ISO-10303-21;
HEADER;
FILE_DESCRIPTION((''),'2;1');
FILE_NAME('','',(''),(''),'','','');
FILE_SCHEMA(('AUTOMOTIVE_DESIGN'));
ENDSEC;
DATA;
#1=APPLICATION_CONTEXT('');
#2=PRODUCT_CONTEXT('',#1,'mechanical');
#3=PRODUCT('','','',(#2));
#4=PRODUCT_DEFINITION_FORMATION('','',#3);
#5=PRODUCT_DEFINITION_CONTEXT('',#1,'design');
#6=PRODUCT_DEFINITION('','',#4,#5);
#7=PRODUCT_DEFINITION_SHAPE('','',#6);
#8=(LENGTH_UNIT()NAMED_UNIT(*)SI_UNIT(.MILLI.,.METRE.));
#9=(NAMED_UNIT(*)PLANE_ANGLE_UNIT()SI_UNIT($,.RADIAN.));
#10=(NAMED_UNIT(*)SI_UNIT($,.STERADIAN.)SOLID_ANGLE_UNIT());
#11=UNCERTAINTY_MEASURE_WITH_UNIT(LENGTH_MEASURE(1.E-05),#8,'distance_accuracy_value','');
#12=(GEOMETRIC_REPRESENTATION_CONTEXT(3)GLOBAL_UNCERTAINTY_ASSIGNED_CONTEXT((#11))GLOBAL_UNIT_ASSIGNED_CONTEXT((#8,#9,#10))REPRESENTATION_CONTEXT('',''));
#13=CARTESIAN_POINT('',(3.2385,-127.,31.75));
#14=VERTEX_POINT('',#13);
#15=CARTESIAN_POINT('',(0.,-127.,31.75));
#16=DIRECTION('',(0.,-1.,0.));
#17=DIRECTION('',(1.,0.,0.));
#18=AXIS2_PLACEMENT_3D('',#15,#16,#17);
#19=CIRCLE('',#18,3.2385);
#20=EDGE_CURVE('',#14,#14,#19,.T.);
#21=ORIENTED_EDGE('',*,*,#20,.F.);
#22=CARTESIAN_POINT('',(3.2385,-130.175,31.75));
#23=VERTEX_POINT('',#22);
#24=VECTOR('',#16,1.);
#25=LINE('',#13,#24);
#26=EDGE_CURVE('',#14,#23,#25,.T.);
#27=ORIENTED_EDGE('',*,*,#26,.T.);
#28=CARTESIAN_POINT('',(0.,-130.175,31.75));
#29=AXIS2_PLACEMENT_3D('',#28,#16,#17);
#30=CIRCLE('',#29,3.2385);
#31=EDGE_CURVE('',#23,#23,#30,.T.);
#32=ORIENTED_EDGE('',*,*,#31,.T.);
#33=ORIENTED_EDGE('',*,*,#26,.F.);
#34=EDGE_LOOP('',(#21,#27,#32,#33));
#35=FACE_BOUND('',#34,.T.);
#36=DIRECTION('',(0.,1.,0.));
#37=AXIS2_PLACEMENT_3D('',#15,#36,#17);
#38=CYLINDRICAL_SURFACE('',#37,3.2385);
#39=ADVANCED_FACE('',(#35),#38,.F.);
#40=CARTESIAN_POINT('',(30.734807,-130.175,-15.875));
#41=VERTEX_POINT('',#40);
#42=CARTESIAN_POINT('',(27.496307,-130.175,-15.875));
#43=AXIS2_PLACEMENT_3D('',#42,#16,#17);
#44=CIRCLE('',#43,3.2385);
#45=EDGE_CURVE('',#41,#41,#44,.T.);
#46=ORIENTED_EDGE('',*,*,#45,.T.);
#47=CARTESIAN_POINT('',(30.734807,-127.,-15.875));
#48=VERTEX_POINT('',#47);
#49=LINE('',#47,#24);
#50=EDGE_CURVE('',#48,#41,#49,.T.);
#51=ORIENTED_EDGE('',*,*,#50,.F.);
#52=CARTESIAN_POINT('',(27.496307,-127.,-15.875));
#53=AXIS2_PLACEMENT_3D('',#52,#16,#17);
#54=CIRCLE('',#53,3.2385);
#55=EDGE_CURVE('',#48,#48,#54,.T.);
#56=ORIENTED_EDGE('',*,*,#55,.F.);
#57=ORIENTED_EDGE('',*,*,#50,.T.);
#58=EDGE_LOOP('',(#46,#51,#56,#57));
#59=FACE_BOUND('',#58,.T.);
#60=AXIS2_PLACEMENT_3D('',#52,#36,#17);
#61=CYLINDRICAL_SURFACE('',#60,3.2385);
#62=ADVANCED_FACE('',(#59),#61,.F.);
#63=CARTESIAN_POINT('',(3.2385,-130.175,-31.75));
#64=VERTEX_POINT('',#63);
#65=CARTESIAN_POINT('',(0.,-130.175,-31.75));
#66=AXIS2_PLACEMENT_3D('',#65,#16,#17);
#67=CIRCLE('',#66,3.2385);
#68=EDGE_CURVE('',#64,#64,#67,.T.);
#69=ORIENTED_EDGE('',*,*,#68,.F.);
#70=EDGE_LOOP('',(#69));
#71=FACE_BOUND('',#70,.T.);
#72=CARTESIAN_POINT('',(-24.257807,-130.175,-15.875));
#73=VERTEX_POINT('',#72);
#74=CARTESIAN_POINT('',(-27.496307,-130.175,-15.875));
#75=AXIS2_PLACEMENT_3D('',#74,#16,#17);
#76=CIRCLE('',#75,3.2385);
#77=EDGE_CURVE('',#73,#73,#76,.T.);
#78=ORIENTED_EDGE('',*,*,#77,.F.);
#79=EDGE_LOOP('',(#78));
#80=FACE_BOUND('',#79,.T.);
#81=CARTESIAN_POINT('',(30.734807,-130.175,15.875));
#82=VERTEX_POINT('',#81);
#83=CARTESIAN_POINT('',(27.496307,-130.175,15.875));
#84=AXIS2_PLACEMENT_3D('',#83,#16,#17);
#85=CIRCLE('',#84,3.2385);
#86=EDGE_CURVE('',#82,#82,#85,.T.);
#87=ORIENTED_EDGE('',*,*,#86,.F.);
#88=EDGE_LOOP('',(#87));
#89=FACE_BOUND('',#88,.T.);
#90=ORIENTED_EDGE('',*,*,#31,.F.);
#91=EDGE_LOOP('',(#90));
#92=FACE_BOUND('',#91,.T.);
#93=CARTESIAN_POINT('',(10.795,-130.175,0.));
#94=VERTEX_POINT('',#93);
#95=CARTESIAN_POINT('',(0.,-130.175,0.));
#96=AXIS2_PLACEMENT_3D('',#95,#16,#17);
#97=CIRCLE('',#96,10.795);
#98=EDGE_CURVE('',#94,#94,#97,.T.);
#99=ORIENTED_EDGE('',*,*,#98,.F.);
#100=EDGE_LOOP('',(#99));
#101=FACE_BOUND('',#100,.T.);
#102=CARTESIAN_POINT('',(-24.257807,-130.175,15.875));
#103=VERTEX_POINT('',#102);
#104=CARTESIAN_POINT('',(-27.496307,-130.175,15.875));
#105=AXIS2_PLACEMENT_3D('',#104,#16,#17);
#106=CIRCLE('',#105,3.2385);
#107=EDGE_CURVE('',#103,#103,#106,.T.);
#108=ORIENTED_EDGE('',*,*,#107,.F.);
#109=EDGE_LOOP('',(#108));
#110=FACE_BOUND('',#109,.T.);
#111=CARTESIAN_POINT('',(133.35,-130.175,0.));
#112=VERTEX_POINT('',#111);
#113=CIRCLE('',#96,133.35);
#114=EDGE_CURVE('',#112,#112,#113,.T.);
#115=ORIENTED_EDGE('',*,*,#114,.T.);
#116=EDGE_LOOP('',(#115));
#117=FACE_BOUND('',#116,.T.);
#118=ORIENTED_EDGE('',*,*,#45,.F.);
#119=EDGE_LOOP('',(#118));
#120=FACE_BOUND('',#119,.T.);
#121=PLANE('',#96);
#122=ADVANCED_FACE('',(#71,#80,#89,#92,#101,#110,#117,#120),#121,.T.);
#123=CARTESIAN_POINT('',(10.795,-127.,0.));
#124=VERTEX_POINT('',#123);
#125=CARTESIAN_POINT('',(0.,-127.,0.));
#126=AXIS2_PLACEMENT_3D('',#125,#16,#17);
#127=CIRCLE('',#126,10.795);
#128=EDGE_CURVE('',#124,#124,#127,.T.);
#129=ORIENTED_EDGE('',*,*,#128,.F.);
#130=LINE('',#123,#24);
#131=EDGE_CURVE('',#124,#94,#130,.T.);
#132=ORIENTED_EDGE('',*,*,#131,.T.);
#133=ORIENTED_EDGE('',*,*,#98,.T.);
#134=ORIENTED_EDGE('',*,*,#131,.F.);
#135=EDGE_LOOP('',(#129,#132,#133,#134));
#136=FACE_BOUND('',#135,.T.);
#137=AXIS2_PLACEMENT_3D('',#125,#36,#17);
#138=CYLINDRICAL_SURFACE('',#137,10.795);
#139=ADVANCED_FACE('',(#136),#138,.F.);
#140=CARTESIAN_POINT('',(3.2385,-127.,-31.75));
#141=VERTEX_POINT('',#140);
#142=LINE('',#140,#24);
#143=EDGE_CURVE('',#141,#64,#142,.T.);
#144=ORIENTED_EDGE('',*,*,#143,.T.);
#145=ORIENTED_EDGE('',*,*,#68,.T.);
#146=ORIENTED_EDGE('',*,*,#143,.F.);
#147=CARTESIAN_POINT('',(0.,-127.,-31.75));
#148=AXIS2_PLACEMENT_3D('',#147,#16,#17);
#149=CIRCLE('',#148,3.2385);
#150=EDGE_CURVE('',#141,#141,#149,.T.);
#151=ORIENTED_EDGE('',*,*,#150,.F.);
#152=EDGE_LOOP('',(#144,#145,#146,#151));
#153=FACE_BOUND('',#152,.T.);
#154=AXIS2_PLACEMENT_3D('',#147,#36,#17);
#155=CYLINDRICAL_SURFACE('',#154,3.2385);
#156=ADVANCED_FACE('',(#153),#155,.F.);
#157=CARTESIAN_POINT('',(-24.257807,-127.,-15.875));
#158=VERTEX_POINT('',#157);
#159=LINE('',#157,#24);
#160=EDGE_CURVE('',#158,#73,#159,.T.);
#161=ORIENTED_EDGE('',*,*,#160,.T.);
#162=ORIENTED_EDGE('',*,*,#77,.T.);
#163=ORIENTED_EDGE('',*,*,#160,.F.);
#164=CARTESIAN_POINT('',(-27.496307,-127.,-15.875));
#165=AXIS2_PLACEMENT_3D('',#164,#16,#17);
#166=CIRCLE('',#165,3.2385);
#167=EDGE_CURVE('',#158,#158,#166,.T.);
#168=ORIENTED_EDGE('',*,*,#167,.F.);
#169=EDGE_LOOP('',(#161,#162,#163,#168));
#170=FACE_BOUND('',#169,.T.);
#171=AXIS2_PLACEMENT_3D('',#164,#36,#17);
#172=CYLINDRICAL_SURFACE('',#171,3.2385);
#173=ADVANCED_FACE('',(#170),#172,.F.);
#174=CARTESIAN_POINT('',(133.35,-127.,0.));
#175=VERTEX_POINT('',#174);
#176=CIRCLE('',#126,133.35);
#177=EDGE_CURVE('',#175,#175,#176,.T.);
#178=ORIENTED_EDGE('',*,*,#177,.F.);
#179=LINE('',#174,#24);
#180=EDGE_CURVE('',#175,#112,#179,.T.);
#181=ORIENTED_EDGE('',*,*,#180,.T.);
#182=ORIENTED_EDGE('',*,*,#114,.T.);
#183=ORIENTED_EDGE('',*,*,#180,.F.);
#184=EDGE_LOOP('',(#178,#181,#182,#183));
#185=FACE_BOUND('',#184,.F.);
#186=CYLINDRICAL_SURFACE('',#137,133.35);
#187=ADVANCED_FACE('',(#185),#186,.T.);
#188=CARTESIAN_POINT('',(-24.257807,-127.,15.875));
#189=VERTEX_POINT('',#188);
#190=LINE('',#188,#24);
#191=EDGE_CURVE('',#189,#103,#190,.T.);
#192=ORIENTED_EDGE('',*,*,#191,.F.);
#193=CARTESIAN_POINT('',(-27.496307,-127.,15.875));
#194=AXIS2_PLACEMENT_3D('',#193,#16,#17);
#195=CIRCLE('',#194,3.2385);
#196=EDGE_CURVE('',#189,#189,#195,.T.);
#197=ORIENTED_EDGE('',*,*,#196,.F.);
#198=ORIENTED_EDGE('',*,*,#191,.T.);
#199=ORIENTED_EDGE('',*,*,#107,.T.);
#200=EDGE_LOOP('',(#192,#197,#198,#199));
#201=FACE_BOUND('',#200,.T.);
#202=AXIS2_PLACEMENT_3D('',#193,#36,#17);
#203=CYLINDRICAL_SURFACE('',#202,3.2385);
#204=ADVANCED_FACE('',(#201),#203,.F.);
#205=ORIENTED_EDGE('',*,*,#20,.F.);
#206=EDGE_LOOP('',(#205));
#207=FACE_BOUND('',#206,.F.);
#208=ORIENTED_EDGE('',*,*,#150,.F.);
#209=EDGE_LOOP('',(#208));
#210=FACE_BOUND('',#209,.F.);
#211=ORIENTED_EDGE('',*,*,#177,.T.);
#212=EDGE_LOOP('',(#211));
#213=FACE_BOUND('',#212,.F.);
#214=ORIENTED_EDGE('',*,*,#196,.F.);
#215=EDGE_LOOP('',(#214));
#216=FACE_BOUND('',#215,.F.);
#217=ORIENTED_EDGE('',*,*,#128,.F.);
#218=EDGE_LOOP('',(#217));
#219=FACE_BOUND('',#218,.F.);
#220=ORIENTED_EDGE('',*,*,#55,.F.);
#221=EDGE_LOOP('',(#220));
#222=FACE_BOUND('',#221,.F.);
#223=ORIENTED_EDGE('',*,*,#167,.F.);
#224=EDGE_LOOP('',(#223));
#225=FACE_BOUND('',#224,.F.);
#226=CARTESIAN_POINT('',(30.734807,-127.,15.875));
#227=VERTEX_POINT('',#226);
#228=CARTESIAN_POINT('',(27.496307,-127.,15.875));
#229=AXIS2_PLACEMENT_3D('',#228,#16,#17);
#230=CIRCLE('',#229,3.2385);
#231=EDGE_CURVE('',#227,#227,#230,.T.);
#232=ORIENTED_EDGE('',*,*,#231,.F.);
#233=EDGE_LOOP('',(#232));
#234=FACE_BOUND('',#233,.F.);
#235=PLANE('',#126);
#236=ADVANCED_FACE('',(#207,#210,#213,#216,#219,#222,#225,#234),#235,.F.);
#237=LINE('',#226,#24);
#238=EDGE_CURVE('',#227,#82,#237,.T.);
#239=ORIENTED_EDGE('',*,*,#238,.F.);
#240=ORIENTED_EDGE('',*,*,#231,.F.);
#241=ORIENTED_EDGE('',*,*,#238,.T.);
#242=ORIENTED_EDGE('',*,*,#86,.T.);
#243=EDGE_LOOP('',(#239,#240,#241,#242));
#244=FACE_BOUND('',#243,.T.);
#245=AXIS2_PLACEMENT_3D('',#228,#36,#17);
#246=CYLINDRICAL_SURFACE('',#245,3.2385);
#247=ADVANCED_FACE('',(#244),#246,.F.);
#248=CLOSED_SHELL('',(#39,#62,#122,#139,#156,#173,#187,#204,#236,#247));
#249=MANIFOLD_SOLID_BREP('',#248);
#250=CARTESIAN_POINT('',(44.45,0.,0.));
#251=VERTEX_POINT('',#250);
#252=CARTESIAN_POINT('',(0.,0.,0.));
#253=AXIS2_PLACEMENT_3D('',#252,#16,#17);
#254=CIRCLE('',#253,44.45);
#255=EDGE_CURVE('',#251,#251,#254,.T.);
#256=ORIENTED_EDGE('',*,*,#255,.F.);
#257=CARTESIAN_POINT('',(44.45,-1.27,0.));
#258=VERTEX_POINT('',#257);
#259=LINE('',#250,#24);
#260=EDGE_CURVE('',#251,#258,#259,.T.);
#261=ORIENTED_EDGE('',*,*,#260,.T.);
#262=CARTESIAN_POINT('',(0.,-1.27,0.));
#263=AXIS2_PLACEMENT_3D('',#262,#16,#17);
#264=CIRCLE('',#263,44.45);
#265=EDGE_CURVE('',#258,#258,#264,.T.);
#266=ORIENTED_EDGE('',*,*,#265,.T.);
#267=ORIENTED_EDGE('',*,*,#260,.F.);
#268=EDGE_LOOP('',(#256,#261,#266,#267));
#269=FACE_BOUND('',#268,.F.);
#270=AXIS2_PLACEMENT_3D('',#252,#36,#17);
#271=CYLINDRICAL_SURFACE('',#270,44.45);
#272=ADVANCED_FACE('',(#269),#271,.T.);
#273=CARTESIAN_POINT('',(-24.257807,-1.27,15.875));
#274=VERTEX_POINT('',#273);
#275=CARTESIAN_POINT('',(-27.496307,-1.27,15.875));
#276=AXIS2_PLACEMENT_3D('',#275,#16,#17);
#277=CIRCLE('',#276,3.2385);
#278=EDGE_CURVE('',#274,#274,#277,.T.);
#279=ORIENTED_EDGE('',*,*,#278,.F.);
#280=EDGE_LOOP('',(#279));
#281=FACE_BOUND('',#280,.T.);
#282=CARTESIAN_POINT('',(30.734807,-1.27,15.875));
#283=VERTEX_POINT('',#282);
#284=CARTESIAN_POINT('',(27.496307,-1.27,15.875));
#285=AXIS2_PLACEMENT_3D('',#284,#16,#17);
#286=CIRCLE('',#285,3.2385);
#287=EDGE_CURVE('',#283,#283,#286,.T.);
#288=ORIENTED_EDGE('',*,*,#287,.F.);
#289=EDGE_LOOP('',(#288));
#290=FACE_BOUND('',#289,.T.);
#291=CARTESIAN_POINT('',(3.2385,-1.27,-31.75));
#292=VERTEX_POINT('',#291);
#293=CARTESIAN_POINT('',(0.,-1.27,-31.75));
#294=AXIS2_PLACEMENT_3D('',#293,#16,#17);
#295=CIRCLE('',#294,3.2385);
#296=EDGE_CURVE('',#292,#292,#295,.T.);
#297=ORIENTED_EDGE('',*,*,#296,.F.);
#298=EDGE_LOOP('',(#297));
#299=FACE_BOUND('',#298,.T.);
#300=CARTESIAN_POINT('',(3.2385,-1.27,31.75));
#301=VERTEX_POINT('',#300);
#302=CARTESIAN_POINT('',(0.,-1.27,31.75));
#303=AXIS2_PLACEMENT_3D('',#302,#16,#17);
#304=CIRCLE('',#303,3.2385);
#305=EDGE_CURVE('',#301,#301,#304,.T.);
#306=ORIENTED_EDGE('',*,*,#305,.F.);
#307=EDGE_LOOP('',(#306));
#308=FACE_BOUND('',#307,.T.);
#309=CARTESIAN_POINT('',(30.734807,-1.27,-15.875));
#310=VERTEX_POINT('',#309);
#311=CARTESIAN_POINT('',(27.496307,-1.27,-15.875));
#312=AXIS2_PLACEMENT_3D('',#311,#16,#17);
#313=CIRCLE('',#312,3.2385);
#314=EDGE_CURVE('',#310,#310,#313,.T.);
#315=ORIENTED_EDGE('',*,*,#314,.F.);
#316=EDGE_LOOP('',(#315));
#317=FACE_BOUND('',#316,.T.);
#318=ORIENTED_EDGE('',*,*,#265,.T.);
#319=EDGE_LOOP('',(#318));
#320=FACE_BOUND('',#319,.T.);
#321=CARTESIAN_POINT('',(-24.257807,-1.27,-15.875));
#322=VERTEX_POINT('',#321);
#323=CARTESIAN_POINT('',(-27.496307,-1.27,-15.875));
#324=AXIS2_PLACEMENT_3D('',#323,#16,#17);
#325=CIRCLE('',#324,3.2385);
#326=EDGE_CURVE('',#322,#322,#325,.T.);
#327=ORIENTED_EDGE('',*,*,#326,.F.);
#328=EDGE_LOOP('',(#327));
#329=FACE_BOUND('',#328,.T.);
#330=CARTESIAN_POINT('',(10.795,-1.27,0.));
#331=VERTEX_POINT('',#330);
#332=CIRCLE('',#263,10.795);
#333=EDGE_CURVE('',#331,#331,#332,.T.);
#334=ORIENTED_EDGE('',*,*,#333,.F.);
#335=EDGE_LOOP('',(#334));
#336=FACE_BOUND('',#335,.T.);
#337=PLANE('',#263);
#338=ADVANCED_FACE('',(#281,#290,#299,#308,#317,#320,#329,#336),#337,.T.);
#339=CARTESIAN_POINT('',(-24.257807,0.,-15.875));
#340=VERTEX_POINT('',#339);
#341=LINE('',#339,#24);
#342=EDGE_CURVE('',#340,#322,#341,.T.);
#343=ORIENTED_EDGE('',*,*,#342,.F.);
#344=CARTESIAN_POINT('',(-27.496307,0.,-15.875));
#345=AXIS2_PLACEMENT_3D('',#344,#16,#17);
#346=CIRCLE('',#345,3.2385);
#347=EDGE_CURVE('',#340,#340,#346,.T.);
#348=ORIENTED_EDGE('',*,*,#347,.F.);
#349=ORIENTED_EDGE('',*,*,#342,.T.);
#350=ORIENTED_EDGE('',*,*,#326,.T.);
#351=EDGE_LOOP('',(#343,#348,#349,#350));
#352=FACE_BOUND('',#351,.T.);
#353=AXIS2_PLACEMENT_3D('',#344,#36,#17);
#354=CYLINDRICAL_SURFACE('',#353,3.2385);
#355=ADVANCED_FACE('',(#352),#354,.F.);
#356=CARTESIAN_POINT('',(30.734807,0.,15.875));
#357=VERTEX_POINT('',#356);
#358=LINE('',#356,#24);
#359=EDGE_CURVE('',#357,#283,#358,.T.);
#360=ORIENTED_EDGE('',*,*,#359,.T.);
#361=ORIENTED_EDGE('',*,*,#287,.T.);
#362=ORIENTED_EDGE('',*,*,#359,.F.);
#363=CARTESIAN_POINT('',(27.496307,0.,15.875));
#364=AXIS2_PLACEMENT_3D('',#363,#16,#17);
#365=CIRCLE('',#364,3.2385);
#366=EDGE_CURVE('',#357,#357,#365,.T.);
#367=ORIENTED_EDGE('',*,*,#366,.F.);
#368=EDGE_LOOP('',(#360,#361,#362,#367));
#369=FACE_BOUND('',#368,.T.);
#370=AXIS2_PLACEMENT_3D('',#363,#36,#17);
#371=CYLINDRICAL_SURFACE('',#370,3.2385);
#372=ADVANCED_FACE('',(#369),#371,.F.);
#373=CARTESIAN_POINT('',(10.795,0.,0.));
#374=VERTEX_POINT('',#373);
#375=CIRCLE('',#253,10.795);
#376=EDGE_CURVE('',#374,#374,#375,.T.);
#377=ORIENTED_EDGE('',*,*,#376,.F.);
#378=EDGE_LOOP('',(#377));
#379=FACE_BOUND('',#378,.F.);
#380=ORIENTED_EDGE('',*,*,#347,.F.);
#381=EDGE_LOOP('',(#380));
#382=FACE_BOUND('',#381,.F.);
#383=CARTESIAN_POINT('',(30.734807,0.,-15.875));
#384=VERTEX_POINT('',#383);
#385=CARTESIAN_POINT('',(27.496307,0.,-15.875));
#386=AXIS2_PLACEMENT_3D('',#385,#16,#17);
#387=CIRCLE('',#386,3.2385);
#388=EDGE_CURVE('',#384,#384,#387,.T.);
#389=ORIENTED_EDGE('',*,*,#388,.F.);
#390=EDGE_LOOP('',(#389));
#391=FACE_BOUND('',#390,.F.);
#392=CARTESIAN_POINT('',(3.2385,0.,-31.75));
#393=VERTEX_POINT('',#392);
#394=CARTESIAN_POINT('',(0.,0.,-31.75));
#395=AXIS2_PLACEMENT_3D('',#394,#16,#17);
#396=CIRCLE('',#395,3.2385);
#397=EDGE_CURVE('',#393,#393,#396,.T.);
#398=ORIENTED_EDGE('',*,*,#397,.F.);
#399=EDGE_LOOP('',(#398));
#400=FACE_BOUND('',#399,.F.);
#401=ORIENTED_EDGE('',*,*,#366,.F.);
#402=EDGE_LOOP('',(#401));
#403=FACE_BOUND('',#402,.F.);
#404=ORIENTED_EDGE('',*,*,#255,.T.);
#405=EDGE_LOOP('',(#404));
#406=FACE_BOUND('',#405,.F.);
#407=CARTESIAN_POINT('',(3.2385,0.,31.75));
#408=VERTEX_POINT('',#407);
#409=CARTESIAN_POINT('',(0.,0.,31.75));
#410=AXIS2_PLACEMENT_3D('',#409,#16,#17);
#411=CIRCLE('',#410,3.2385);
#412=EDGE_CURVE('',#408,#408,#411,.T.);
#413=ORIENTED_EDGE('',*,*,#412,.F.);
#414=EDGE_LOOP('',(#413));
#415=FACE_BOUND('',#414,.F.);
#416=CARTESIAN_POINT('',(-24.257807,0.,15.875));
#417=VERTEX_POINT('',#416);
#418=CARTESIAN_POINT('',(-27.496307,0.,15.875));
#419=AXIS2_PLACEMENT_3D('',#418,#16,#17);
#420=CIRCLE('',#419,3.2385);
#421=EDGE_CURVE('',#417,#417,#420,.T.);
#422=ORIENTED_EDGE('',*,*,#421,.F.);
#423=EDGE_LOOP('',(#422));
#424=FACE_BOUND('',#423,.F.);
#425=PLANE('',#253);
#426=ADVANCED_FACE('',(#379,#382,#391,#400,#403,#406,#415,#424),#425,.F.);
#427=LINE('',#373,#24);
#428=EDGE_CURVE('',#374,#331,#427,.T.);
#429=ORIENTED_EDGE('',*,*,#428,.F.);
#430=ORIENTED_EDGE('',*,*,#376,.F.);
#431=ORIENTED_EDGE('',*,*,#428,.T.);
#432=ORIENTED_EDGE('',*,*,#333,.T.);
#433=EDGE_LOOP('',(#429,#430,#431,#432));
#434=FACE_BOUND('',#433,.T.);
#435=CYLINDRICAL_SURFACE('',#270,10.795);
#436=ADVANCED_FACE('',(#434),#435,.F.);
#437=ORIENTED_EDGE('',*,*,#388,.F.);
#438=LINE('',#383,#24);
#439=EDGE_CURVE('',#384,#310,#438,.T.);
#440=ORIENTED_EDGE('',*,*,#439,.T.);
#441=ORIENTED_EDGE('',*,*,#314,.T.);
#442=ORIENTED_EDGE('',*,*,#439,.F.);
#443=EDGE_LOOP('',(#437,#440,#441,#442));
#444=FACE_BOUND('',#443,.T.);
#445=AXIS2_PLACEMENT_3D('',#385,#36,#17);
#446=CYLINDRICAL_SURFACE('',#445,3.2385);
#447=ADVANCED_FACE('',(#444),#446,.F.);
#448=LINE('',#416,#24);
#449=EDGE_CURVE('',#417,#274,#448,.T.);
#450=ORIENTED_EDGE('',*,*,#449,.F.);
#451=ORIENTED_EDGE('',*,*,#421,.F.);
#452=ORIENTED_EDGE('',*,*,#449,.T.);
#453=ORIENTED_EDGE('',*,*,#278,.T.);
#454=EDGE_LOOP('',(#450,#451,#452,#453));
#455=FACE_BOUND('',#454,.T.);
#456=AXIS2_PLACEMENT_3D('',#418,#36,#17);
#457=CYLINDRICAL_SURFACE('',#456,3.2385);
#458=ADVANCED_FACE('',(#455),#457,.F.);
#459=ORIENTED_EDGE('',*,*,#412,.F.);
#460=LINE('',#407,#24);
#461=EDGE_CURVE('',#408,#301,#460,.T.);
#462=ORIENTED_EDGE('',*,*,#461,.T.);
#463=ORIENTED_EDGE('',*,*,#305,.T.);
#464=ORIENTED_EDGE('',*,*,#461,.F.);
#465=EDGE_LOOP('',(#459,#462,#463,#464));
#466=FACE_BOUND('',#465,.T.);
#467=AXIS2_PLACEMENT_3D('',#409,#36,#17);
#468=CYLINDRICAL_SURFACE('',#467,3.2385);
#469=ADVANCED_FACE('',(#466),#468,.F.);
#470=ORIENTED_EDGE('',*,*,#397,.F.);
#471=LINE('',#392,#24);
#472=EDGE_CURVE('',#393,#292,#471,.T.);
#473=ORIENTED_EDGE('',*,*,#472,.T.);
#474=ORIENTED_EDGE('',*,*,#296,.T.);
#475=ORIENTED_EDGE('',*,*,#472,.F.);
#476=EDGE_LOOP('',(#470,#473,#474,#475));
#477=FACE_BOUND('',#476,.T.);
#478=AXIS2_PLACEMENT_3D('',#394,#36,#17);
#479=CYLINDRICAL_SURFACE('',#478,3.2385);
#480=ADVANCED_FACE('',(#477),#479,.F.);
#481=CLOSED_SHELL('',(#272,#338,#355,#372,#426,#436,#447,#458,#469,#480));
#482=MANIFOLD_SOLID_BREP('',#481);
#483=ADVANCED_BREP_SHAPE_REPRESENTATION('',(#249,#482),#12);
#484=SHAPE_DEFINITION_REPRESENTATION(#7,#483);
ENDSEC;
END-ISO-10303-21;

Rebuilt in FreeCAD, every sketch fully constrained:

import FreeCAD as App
import Part
import Sketcher
from FreeCAD import Vector
Q = App.Units.Quantity

doc = App.newDocument("Part")
body = doc.addObject("PartDesign::Body", "Body")

sketch1 = body.newObject("Sketcher::SketchObject", "Sketch")
sketch1.AttachmentSupport = (doc.getObject("XZ_Plane"), [""])
sketch1.MapMode = "FlatFace"
sketch1.addGeometry([
    Part.Circle(Vector(0, 0, 0), Vector(0, 0, 1), 44.5),
    Part.Circle(Vector(-27.5, -15.9, 0), Vector(0, 0, 1), 3.2),
    Part.Circle(Vector(0, -31.8, 0), Vector(0, 0, 1), 3.2),
    Part.Circle(Vector(27.5, -15.9, 0), Vector(0, 0, 1), 3.2),
    Part.Circle(Vector(-27.5, 15.9, 0), Vector(0, 0, 1), 3.2),
    Part.Circle(Vector(0, 0, 0), Vector(0, 0, 1), 10.8),
    Part.Circle(Vector(27.5, 15.9, 0), Vector(0, 0, 1), 3.2),
    Part.Circle(Vector(0, 31.8, 0), Vector(0, 0, 1), 3.2),
], False)
sketch1.addConstraint([
    Sketcher.Constraint("Coincident", 0, 3, -1, 1),
    Sketcher.Constraint("Coincident", 5, 3, -1, 1),
    Sketcher.Constraint("Equal", 1, 2),
    Sketcher.Constraint("Equal", 2, 3),
    Sketcher.Constraint("Equal", 3, 4),
    Sketcher.Constraint("Equal", 4, 6),
    Sketcher.Constraint("Equal", 6, 7),
    Sketcher.Constraint("Symmetric", 3, 3, 4, 3, -1, 1),
    Sketcher.Constraint("Symmetric", 1, 3, 6, 3, -1, 1),
    Sketcher.Constraint("Symmetric", 2, 3, 7, 3, -1, 1),
    Sketcher.Constraint("Symmetric", 1, 3, 3, 3, -2),
    Sketcher.Constraint("PointOnObject", 2, 3, -2),
    Sketcher.Constraint("Diameter", 0, Q("3.5 in")),
    Sketcher.Constraint("Diameter", 5, Q("0.85 in")),
    Sketcher.Constraint("Diameter", 1, Q("0.255 in")),
    Sketcher.Constraint("DistanceY", 2, 3, -1, 1, Q("1.25 in")),
    Sketcher.Constraint("DistanceY", 1, 3, 4, 3, Q("1.25 in")),
    Sketcher.Constraint("DistanceX", 1, 3, -1, 1, Q("27.496307 mm")),
])
pad1 = body.newObject("PartDesign::Pad", "Pad")
pad1.Profile = sketch1
pad1.Length = Q("0.05 in")
body2 = doc.addObject("PartDesign::Body", "Body001")

sketch2 = body2.newObject("Sketcher::SketchObject", "Sketch001")
sketch2.AttachmentSupport = (doc.getObject("XZ_Plane001"), [""])
sketch2.MapMode = "FlatFace"
sketch2.AttachmentOffset = App.Placement(Vector(0, 0, 5 * 25.4), App.Rotation())
sketch2.addGeometry([
    Part.Circle(Vector(0, 0, 0), Vector(0, 0, 1), 133.3),
    Part.Circle(Vector(-27.5, -15.9, 0), Vector(0, 0, 1), 3.2),
    Part.Circle(Vector(0, -31.8, 0), Vector(0, 0, 1), 3.2),
    Part.Circle(Vector(27.5, -15.9, 0), Vector(0, 0, 1), 3.2),
    Part.Circle(Vector(-27.5, 15.9, 0), Vector(0, 0, 1), 3.2),
    Part.Circle(Vector(0, 0, 0), Vector(0, 0, 1), 10.8),
    Part.Circle(Vector(27.5, 15.9, 0), Vector(0, 0, 1), 3.2),
    Part.Circle(Vector(0, 31.8, 0), Vector(0, 0, 1), 3.2),
], False)
sketch2.addConstraint([
    Sketcher.Constraint("Coincident", 0, 3, -1, 1),
    Sketcher.Constraint("Coincident", 5, 3, -1, 1),
    Sketcher.Constraint("Equal", 1, 2),
    Sketcher.Constraint("Equal", 2, 3),
    Sketcher.Constraint("Equal", 3, 4),
    Sketcher.Constraint("Equal", 4, 6),
    Sketcher.Constraint("Equal", 6, 7),
    Sketcher.Constraint("Symmetric", 3, 3, 4, 3, -1, 1),
    Sketcher.Constraint("Symmetric", 1, 3, 6, 3, -1, 1),
    Sketcher.Constraint("Symmetric", 2, 3, 7, 3, -1, 1),
    Sketcher.Constraint("Symmetric", 1, 3, 3, 3, -2),
    Sketcher.Constraint("PointOnObject", 2, 3, -2),
    Sketcher.Constraint("Diameter", 0, Q("10.5 in")),
    Sketcher.Constraint("Diameter", 5, Q("0.85 in")),
    Sketcher.Constraint("Diameter", 1, Q("0.255 in")),
    Sketcher.Constraint("DistanceY", 2, 3, -1, 1, Q("1.25 in")),
    Sketcher.Constraint("DistanceY", 1, 3, 4, 3, Q("1.25 in")),
    Sketcher.Constraint("DistanceX", 1, 3, -1, 1, Q("27.496307 mm")),
])
pad2 = body2.newObject("PartDesign::Pad", "Pad001")
pad2.Profile = sketch2
pad2.Length = Q("0.125 in")

doc.recompute()
